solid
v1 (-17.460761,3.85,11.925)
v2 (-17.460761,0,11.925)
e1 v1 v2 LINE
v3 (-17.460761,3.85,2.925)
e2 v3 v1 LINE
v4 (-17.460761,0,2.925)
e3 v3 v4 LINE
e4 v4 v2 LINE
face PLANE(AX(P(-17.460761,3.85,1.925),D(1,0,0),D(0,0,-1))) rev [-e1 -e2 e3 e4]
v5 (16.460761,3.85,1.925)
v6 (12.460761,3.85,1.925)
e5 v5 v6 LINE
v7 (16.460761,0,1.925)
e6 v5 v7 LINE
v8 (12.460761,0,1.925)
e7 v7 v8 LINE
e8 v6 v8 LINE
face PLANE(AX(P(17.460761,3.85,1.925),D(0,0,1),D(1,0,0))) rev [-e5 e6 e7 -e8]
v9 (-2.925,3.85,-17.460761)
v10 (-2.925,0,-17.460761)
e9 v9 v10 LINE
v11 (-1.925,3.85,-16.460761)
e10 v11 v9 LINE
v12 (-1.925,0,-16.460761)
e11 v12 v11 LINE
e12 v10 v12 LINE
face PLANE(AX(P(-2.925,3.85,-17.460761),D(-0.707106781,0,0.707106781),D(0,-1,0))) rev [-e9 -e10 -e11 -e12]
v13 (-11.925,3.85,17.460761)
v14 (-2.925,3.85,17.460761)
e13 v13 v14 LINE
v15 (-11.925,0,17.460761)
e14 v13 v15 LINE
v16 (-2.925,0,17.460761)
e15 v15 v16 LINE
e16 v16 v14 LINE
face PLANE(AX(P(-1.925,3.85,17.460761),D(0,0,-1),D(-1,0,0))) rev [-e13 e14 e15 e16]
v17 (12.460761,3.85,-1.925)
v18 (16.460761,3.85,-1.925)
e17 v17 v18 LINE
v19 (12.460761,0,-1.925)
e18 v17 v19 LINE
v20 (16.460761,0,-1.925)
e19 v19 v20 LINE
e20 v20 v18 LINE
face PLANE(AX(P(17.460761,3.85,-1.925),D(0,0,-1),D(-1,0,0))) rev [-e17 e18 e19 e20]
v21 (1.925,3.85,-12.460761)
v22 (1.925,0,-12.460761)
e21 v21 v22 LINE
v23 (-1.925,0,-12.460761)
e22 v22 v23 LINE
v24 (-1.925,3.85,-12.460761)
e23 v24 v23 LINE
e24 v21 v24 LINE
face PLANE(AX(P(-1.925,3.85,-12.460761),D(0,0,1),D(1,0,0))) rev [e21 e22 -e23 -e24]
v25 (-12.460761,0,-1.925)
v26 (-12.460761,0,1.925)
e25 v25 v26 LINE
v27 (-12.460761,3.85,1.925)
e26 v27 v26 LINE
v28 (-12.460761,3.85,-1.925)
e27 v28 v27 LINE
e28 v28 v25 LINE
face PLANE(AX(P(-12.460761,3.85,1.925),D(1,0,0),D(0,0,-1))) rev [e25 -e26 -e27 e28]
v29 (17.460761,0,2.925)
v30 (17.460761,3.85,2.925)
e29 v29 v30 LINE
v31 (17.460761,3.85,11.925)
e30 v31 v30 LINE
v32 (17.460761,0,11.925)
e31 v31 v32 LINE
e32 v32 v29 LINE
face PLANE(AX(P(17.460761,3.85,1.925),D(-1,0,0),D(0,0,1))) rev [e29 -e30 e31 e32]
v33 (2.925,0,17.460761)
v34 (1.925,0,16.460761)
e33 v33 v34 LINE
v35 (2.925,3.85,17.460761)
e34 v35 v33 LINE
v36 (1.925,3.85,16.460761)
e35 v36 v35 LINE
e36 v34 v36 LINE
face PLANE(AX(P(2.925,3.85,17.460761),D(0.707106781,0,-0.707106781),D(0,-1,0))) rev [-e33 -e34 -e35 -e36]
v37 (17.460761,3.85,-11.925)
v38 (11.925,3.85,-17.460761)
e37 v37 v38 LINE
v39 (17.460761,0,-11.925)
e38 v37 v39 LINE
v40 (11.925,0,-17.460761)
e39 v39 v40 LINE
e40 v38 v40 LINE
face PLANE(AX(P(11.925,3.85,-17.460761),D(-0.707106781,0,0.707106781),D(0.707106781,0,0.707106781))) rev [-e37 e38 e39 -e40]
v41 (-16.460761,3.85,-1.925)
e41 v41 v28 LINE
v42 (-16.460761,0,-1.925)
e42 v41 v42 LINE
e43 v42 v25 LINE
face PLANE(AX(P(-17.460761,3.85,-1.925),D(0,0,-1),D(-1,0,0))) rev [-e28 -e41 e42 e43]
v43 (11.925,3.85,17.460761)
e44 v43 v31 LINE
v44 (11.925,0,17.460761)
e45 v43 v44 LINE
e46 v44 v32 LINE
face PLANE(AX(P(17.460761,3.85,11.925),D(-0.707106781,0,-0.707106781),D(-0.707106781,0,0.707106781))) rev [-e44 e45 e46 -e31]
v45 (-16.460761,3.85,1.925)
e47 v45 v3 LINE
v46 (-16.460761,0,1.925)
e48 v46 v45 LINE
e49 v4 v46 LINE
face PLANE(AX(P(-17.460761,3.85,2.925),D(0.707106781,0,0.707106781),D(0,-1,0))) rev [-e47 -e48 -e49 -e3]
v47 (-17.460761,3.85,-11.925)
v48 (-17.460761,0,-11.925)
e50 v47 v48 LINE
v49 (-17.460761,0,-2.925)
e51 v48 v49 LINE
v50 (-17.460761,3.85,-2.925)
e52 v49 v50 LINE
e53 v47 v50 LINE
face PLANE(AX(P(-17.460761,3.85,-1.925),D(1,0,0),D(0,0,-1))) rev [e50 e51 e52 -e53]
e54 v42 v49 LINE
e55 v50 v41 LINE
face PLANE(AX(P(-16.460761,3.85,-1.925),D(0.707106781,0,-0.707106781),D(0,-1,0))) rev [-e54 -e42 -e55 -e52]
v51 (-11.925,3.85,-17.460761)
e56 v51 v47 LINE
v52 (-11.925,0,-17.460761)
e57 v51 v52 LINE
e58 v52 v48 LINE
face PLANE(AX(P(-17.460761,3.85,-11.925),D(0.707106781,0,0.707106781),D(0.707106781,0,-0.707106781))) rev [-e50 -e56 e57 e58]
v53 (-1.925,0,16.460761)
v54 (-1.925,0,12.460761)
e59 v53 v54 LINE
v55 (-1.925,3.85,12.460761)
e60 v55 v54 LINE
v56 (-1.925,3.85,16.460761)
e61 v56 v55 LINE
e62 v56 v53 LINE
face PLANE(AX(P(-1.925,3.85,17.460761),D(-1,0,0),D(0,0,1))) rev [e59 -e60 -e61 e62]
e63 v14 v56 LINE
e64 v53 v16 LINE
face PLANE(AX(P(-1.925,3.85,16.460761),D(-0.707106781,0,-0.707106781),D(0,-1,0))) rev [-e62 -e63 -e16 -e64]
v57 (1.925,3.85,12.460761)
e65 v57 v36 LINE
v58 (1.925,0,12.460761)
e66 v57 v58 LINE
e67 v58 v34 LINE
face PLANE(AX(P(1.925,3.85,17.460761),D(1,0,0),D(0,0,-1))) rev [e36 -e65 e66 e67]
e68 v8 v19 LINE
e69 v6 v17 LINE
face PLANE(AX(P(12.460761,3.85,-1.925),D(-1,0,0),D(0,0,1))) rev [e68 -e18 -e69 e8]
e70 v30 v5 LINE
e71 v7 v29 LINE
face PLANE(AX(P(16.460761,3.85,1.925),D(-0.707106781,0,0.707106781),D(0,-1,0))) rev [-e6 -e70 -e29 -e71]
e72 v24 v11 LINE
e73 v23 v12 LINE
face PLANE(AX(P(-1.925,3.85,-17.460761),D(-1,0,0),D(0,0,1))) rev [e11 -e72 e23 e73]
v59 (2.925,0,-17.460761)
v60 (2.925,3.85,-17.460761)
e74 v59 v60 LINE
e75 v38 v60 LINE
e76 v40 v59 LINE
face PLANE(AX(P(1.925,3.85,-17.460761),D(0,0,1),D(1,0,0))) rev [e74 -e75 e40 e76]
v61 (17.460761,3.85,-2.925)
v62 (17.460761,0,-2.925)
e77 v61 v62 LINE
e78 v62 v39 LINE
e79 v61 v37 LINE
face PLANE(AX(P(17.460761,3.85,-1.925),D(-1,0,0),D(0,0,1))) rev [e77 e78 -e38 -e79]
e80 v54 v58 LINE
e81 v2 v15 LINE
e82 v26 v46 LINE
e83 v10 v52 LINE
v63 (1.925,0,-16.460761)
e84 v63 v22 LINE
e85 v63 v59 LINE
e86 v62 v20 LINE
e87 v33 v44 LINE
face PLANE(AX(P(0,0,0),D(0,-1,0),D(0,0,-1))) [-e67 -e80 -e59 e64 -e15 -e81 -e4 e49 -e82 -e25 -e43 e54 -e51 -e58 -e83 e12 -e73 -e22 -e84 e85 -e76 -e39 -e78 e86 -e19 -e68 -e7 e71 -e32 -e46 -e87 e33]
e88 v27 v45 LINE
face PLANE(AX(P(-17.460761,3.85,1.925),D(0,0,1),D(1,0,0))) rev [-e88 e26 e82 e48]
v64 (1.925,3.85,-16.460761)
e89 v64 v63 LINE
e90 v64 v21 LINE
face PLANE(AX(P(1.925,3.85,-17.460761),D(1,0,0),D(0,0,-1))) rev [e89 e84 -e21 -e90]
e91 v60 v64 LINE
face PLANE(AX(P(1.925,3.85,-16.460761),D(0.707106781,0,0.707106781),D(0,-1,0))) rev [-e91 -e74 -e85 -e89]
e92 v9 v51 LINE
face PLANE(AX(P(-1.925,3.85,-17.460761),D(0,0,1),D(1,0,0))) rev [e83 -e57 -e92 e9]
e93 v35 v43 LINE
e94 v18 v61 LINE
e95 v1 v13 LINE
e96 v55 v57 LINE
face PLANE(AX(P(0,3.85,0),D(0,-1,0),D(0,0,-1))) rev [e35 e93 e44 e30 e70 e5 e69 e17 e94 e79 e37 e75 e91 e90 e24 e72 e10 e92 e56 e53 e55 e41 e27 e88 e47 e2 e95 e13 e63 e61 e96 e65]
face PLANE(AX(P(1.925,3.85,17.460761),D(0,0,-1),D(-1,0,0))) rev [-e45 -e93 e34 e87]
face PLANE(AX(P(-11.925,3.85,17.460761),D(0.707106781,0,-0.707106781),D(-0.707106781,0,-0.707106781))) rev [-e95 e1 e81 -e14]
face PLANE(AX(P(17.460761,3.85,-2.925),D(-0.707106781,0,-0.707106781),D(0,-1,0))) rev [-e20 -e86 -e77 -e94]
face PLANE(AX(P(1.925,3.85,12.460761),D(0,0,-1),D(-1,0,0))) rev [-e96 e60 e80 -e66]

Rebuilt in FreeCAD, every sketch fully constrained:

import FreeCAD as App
import Part
import Sketcher
from FreeCAD import Vector
Q = App.Units.Quantity


def edges_at(feature, points):
    """Names of the edges that pass closest to the given points."""
    edges = feature.Shape.Edges
    near = lambda p: min(range(len(edges)), key=lambda i: edges[i].distToShape(Part.Vertex(*p))[0])
    return sorted({f"Edge{near(p) + 1}" for p in points})

doc = App.newDocument("Part")
params = doc.addObject("Spreadsheet::Sheet", "Params")
for row, (alias, value) in enumerate([
    ("sketch1_width", "5 mm"),
    ("sketch1_width2", "10 mm"),
    ("sketch1_width3", "3.85 mm"),
    ("pad1_length", "3.85 mm"),
    ("chamfer_size", "1 mm"),
], start=1):
    params.set(f"A{row}", alias)
    params.set(f"B{row}", "=" + value)
    params.setAlias(f"B{row}", alias)

body = doc.addObject("PartDesign::Body", "Body")

# Sketch on XZ plane
sketch1 = body.newObject("Sketcher::SketchObject", "Sketch")
sketch1.AttachmentSupport = (doc.getObject("XZ_Plane"), [""])
sketch1.MapMode = "FlatFace"
sketch1.addGeometry([
    Part.LineSegment(Vector(11.9, 17.5, 0), Vector(17.5, 11.9, 0)),  # 0
    Part.LineSegment(Vector(17.5, 11.9, 0), Vector(17.5, 1.9, 0)),  # 1
    Part.LineSegment(Vector(17.5, 1.9, 0), Vector(12.5, 1.9, 0)),  # 2
    Part.LineSegment(Vector(12.5, 1.9, 0), Vector(12.5, -1.9, 0)),  # 3
    Part.LineSegment(Vector(12.5, -1.9, 0), Vector(17.5, -1.9, 0)),  # 4
    Part.LineSegment(Vector(17.5, -1.9, 0), Vector(17.5, -11.9, 0)),  # 5
    Part.LineSegment(Vector(17.5, -11.9, 0), Vector(11.9, -17.5, 0)),  # 6
    Part.LineSegment(Vector(11.9, -17.5, 0), Vector(1.9, -17.5, 0)),  # 7
    Part.LineSegment(Vector(1.9, -17.5, 0), Vector(1.9, -12.5, 0)),  # 8
    Part.LineSegment(Vector(1.9, -12.5, 0), Vector(-1.9, -12.5, 0)),  # 9
    Part.LineSegment(Vector(-1.9, -12.5, 0), Vector(-1.9, -17.5, 0)),  # 10
    Part.LineSegment(Vector(-1.9, -17.5, 0), Vector(-11.9, -17.5, 0)),  # 11
    Part.LineSegment(Vector(-11.9, -17.5, 0), Vector(-17.5, -11.9, 0)),  # 12
    Part.LineSegment(Vector(-17.5, -11.9, 0), Vector(-17.5, -1.9, 0)),  # 13
    Part.LineSegment(Vector(-17.5, -1.9, 0), Vector(-12.5, -1.9, 0)),  # 14
    Part.LineSegment(Vector(-12.5, -1.9, 0), Vector(-12.5, 1.9, 0)),  # 15
    Part.LineSegment(Vector(-12.5, 1.9, 0), Vector(-17.5, 1.9, 0)),  # 16
    Part.LineSegment(Vector(-17.5, 1.9, 0), Vector(-17.5, 11.9, 0)),  # 17
    Part.LineSegment(Vector(-17.5, 11.9, 0), Vector(-11.9, 17.5, 0)),  # 18
    Part.LineSegment(Vector(-11.9, 17.5, 0), Vector(-1.9, 17.5, 0)),  # 19
    Part.LineSegment(Vector(-1.9, 17.5, 0), Vector(-1.9, 12.5, 0)),  # 20
    Part.LineSegment(Vector(-1.9, 12.5, 0), Vector(1.9, 12.5, 0)),  # 21
    Part.LineSegment(Vector(1.9, 12.5, 0), Vector(1.9, 17.5, 0)),  # 22
    Part.LineSegment(Vector(1.9, 17.5, 0), Vector(11.9, 17.5, 0)),  # 23
], False)
sketch1.addConstraint([
    Sketcher.Constraint("Coincident", 0, 2, 1, 1),
    Sketcher.Constraint("Coincident", 1, 2, 2, 1),
    Sketcher.Constraint("Coincident", 2, 2, 3, 1),
    Sketcher.Constraint("Coincident", 3, 2, 4, 1),
    Sketcher.Constraint("Coincident", 4, 2, 5, 1),
    Sketcher.Constraint("Coincident", 5, 2, 6, 1),
    Sketcher.Constraint("Coincident", 6, 2, 7, 1),
    Sketcher.Constraint("Coincident", 7, 2, 8, 1),
    Sketcher.Constraint("Coincident", 8, 2, 9, 1),
    Sketcher.Constraint("Coincident", 9, 2, 10, 1),
    Sketcher.Constraint("Coincident", 10, 2, 11, 1),
    Sketcher.Constraint("Coincident", 11, 2, 12, 1),
    Sketcher.Constraint("Coincident", 12, 2, 13, 1),
    Sketcher.Constraint("Coincident", 13, 2, 14, 1),
    Sketcher.Constraint("Coincident", 14, 2, 15, 1),
    Sketcher.Constraint("Coincident", 15, 2, 16, 1),
    Sketcher.Constraint("Coincident", 16, 2, 17, 1),
    Sketcher.Constraint("Coincident", 17, 2, 18, 1),
    Sketcher.Constraint("Coincident", 18, 2, 19, 1),
    Sketcher.Constraint("Coincident", 19, 2, 20, 1),
    Sketcher.Constraint("Coincident", 20, 2, 21, 1),
    Sketcher.Constraint("Coincident", 21, 2, 22, 1),
    Sketcher.Constraint("Coincident", 22, 2, 23, 1),
    Sketcher.Constraint("Coincident", 23, 2, 0, 1),
    Sketcher.Constraint("Vertical", 1),
    Sketcher.Constraint("Horizontal", 2),
    Sketcher.Constraint("Vertical", 3),
    Sketcher.Constraint("Horizontal", 4),
    Sketcher.Constraint("Vertical", 5),
    Sketcher.Constraint("Horizontal", 7),
    Sketcher.Constraint("Vertical", 8),
    Sketcher.Constraint("Horizontal", 9),
    Sketcher.Constraint("Vertical", 10),
    Sketcher.Constraint("Horizontal", 11),
    Sketcher.Constraint("Vertical", 13),
    Sketcher.Constraint("Horizontal", 14),
    Sketcher.Constraint("Vertical", 15),
    Sketcher.Constraint("Horizontal", 16),
    Sketcher.Constraint("Vertical", 17),
    Sketcher.Constraint("Horizontal", 19),
    Sketcher.Constraint("Vertical", 20),
    Sketcher.Constraint("Horizontal", 21),
    Sketcher.Constraint("Vertical", 22),
    Sketcher.Constraint("Horizontal", 23),
    Sketcher.Constraint("Symmetric", 0, 2, 12, 2, -1, 1),
    Sketcher.Constraint("Symmetric", 2, 2, 14, 2, -1, 1),
    Sketcher.Constraint("Symmetric", 4, 2, 16, 2, -1, 1),
    Sketcher.Constraint("Symmetric", 6, 2, 18, 2, -1, 1),
    Sketcher.Constraint("Symmetric", 8, 2, 20, 2, -1, 1),
    Sketcher.Constraint("Symmetric", 10, 2, 22, 2, -1, 1),
    Sketcher.Constraint("Symmetric", 7, 2, 10, 2, -2),
    Sketcher.Constraint("Symmetric", 5, 2, 12, 2, -2),
    Sketcher.Constraint("Perpendicular", 0, 6),
    Sketcher.Constraint("Perpendicular", 6, 12),
    Sketcher.Constraint("Perpendicular", 12, 18),
    Sketcher.Constraint("Horizontal", 4, 2, 13, 2),
    Sketcher.Constraint("Vertical", 11, 2, 18, 2),
    Sketcher.Constraint("Equal", 23, 1),
    Sketcher.Constraint("Equal", 21, 3),
    Sketcher.Constraint("Equal", 16, 8),
    Sketcher.Constraint("DistanceX", 2, 2, 2, 1, Q("5 mm")),
    Sketcher.Constraint("DistanceX", 7, 2, 7, 1, Q("10 mm")),
    Sketcher.Constraint("DistanceX", 9, 2, 9, 1, Q("3.85 mm")),
    Sketcher.Constraint("Distance", 0, Q("7.828748 mm")),
])
sketch1.setExpression("Constraints[60]", "Params.sketch1_width")
sketch1.setExpression("Constraints[61]", "Params.sketch1_width2")
sketch1.setExpression("Constraints[62]", "Params.sketch1_width3")
pad1 = body.newObject("PartDesign::Pad", "Pad")
pad1.Profile = sketch1
pad1.setExpression("Length", "Params.pad1_length")
pad1.Reversed = True
doc.recompute()

chamfer = body.newObject("PartDesign::Chamfer", "Chamfer")
chamfer.Base = (pad1, edges_at(pad1, [
    (17.461, 1.925, -1.925),
    (17.461, 1.925, 1.925),
    (1.925, 1.925, 17.461),
    (-1.925, 1.925, 17.461),
    (-17.461, 1.925, 1.925),
    (-17.461, 1.925, -1.925),
    (-1.925, 1.925, -17.461),
    (1.925, 1.925, -17.461),
]))
chamfer.setExpression("Size", "Params.chamfer_size")

doc.recompute()
